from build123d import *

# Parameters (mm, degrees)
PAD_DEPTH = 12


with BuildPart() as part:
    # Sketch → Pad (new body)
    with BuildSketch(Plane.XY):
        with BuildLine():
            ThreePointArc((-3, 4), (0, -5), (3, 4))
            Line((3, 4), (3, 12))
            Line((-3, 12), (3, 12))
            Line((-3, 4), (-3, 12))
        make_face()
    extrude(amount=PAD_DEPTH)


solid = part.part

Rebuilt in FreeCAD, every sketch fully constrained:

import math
import FreeCAD as App
import Part
import Sketcher

V = App.Vector

doc = App.newDocument("Part")
params = doc.addObject("Spreadsheet::Sheet", "Params")
for row, (alias, value) in enumerate([
    ("sketch1_radius", "5 mm"),
    ("sketch1_width", "6 mm"),
    ("sketch1_height", "8 mm"),
    ("pad1_length", "12 mm"),
], start=1):
    params.set(f"A{row}", alias)
    params.set(f"B{row}", "=" + value)
    params.setAlias(f"B{row}", alias)

body = doc.addObject("PartDesign::Body", "Body")

# Sketch on XY plane
sketch1 = doc.addObject("Sketcher::SketchObject", "Sketch")
body.addObject(sketch1)
sketch1.AttachmentSupport = (doc.XY_Plane, [""])
sketch1.MapMode = "FlatFace"
sketch1.addGeometry([
    Part.ArcOfCircle(Part.Circle(V(0, 0, 0), V(0, 0, 1), 5), math.radians(126.869898), math.radians(413.130102)),
    Part.LineSegment(V(3, 4, 0), V(3, 12, 0)),
    Part.LineSegment(V(3, 12, 0), V(-3, 12, 0)),
    Part.LineSegment(V(-3, 12, 0), V(-3, 4, 0)),
], False)
sketch1.addConstraint([
    Sketcher.Constraint("Coincident", 0, 2, 1, 1),
    Sketcher.Constraint("Coincident", 1, 2, 2, 1),
    Sketcher.Constraint("Coincident", 2, 2, 3, 1),
    Sketcher.Constraint("Coincident", 3, 2, 0, 1),
    Sketcher.Constraint("Vertical", 1),
    Sketcher.Constraint("Horizontal", 2),
    Sketcher.Constraint("Vertical", 3),
    Sketcher.Constraint("Coincident", 0, 3, -1, 1),
    Sketcher.Constraint("Horizontal", 0, 2, 3, 2),
    Sketcher.Constraint("Radius", 0, 5.0),
    Sketcher.Constraint("DistanceX", 2, 2, 2, 1, 6.0),
    Sketcher.Constraint("DistanceY", 1, 1, 1, 2, 8.0),
])
sketch1.setExpression("Constraints[9]", "Params.sketch1_radius")
sketch1.setExpression("Constraints[10]", "Params.sketch1_width")
sketch1.setExpression("Constraints[11]", "Params.sketch1_height")
pad1 = doc.addObject("PartDesign::Pad", "Pad")
body.addObject(pad1)
pad1.Profile = sketch1
pad1.setExpression("Length", "Params.pad1_length")

doc.recompute()
